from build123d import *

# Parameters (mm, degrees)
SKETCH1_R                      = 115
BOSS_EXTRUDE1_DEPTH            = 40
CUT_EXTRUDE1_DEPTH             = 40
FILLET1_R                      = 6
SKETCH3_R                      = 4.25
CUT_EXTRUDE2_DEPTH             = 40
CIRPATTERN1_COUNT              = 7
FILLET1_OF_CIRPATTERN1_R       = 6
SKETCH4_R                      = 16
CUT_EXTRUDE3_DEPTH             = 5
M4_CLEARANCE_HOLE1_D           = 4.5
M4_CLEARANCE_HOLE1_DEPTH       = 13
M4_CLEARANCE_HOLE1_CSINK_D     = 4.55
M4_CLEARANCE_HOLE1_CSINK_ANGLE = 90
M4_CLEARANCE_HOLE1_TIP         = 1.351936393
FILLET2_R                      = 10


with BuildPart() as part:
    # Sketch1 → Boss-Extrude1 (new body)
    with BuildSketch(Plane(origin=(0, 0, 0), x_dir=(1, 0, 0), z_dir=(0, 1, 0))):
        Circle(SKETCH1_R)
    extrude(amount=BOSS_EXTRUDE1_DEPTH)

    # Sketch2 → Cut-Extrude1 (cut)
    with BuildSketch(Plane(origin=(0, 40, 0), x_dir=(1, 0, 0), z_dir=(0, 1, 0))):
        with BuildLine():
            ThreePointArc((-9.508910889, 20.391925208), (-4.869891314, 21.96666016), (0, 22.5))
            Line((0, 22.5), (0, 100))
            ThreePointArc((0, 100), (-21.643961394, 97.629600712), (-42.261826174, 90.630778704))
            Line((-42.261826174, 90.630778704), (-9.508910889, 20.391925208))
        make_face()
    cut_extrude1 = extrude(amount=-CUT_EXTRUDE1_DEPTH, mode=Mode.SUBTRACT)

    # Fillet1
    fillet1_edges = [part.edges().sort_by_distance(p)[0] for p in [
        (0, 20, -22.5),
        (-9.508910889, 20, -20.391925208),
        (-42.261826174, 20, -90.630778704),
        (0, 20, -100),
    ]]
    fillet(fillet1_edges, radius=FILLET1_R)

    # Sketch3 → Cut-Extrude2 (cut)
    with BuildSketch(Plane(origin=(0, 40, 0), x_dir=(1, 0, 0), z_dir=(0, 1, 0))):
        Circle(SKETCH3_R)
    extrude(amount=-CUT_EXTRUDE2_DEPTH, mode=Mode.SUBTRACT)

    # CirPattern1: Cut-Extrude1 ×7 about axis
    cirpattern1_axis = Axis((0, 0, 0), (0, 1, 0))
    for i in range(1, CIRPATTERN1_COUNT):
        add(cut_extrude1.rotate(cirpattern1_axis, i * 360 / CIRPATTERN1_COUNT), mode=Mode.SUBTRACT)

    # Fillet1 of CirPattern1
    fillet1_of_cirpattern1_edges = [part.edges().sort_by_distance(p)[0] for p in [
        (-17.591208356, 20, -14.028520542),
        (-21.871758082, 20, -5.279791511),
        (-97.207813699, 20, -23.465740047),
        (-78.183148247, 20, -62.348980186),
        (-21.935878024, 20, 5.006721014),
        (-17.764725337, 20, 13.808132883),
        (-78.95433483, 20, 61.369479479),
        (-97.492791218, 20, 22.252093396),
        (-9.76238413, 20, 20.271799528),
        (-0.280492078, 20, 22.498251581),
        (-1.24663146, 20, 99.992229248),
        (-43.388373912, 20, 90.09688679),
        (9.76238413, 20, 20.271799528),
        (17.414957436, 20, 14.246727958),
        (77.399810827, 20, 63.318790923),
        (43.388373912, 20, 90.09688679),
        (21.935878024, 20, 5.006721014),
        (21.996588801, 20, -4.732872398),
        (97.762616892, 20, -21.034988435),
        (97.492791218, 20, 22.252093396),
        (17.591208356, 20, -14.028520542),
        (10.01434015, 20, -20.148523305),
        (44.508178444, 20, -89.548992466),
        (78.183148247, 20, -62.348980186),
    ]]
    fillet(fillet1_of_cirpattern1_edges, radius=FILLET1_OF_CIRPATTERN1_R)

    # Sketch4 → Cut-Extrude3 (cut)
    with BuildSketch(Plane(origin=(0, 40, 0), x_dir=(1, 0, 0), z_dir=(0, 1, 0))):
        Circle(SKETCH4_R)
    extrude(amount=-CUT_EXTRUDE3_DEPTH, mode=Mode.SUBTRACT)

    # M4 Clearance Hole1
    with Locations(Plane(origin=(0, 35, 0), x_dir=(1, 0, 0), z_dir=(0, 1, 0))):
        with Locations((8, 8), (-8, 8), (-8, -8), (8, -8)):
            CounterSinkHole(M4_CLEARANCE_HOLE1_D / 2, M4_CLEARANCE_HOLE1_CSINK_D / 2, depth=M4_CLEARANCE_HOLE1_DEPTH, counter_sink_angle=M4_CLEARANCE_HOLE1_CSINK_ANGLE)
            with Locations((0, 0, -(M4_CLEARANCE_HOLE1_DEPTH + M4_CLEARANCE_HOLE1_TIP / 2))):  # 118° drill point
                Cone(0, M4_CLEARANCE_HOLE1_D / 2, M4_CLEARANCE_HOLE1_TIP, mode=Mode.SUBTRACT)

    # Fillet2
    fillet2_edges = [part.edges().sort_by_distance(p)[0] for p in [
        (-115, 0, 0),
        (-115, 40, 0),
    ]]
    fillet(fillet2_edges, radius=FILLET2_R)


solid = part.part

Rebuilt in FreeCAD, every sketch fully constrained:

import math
import FreeCAD as App
import Part
import Sketcher

V = App.Vector
Q = App.Units.Quantity


def edges_at(feature, points):
    """Names of the edges that pass closest to the given points."""
    edges = feature.Shape.Edges
    near = lambda p: min(range(len(edges)), key=lambda i: edges[i].distToShape(Part.Vertex(*p))[0])
    return sorted({f"Edge{near(p) + 1}" for p in points})

doc = App.newDocument("Part")
params = doc.addObject("Spreadsheet::Sheet", "Params")
for row, (alias, value) in enumerate([
    ("sketch1_diameter", "230 mm"),
    ("pad1_length", "40 mm"),
    ("sketch2_radius", "100 mm"),
    ("sketch2_radius2", "22.5 mm"),
    ("pocket1_length", "40 mm"),
    ("fillet_radius", "6 mm"),
    ("sketch3_diameter", "8.5 mm"),
    ("pocket2_length", "40 mm"),
    ("fillet2_radius", "6 mm"),
    ("sketch4_diameter", "32 mm"),
    ("pocket3_length", "5 mm"),
    ("sketch5_diameter", "4.5 mm"),
    ("hole_diameter", "4.5 mm"),
    ("hole_depth", "13 mm"),
    ("hole_csink_diameter", "4.55 mm"),
    ("fillet3_radius", "10 mm"),
], start=1):
    params.set(f"A{row}", alias)
    params.set(f"B{row}", "=" + value)
    params.setAlias(f"B{row}", alias)

body = doc.addObject("PartDesign::Body", "Body")

# Sketch on XZ plane
sketch1 = body.newObject("Sketcher::SketchObject", "Sketch")
sketch1.AttachmentSupport = (doc.getObject("XZ_Plane"), [""])
sketch1.MapMode = "FlatFace"
sketch1.addGeometry(Part.Circle(V(0, 0, 0), V(0, 0, 1), 115), False)
sketch1.addConstraint([
    Sketcher.Constraint("Coincident", 0, 3, -1, 1),
    Sketcher.Constraint("Diameter", 0, Q("230 mm")),
])
sketch1.setExpression("Constraints[1]", "Params.sketch1_diameter")
pad1 = body.newObject("PartDesign::Pad", "Pad")
pad1.Profile = sketch1
pad1.setExpression("Length", "Params.pad1_length")
pad1.Reversed = True

# Sketch on XZ plane
sketch2 = body.newObject("Sketcher::SketchObject", "Sketch001")
sketch2.AttachmentSupport = (doc.getObject("XZ_Plane"), [""])
sketch2.MapMode = "FlatFace"
sketch2.AttachmentOffset = App.Placement(V(0, 0, -40), App.Rotation())
sketch2.addGeometry([
    Part.ArcOfCircle(Part.Circle(V(0, 0, 0), V(0, 0, 1), 22), math.radians(-115), math.radians(-90)),
    Part.LineSegment(V(0, -22, 0), V(0, -100, 0)),
    Part.ArcOfCircle(Part.Circle(V(0, 0, 0), V(0, 0, 1), 100), math.radians(-115), math.radians(-90)),
    Part.LineSegment(V(-42, -91, 0), V(-10, -20, 0)),
], False)
sketch2.addConstraint([
    Sketcher.Constraint("Coincident", 0, 2, 1, 1),
    Sketcher.Constraint("Coincident", 1, 2, 2, 2),
    Sketcher.Constraint("Coincident", 2, 1, 3, 1),
    Sketcher.Constraint("Coincident", 3, 2, 0, 1),
    Sketcher.Constraint("Vertical", 1),
    Sketcher.Constraint("Coincident", 0, 3, -1, 1),
    Sketcher.Constraint("Coincident", 2, 3, -1, 1),
    Sketcher.Constraint("PointOnObject", 0, 2, -2),
    Sketcher.Constraint("Radius", 2, Q("100 mm")),
    Sketcher.Constraint("Radius", 0, Q("22.5 mm")),
    Sketcher.Constraint("Angle", 3, Q("65 deg")),
    Sketcher.Constraint("DistanceY", 2, 1, -1, 1, Q("90.630779 mm")),
])
sketch2.setExpression("Constraints[8]", "Params.sketch2_radius")
sketch2.setExpression("Constraints[9]", "Params.sketch2_radius2")
pocket1 = body.newObject("PartDesign::Pocket", "Pocket")
pocket1.Profile = sketch2
pocket1.setExpression("Length", "Params.pocket1_length")
pocket1.Reversed = True
doc.recompute()

fillet = body.newObject("PartDesign::Fillet", "Fillet")
fillet.Base = (pocket1, edges_at(pocket1, [
    (0, 20, -22.5),
    (-9.509, 20, -20.392),
    (-42.262, 20, -90.631),
    (0, 20, -100),
]))
fillet.setExpression("Radius", "Params.fillet_radius")

# Sketch on XZ plane
sketch3 = body.newObject("Sketcher::SketchObject", "Sketch002")
sketch3.AttachmentSupport = (doc.getObject("XZ_Plane"), [""])
sketch3.MapMode = "FlatFace"
sketch3.AttachmentOffset = App.Placement(V(0, 0, -40), App.Rotation())
sketch3.addGeometry(Part.Circle(V(0, 0, 0), V(0, 0, 1), 4.2), False)
sketch3.addConstraint([
    Sketcher.Constraint("Coincident", 0, 3, -1, 1),
    Sketcher.Constraint("Diameter", 0, Q("8.5 mm")),
])
sketch3.setExpression("Constraints[1]", "Params.sketch3_diameter")
pocket2 = body.newObject("PartDesign::Pocket", "Pocket001")
pocket2.Profile = sketch3
pocket2.setExpression("Length", "Params.pocket2_length")
pocket2.Reversed = True
doc.recompute()

polarpattern = body.newObject("PartDesign::PolarPattern", "PolarPattern")
polarpattern.Originals = [pocket1]
polarpattern.Axis = (doc.getObject("Y_Axis"), [""])
polarpattern.Angle = 360
polarpattern.Occurrences = 7
body.Tip = polarpattern
doc.recompute()

fillet2 = body.newObject("PartDesign::Fillet", "Fillet001")
fillet2.Base = (polarpattern, edges_at(polarpattern, [
    (-17.591, 20, -14.029),
    (-21.872, 20, -5.28),
    (-97.208, 20, -23.466),
    (-78.183, 20, -62.349),
    (-21.936, 20, 5.007),
    (-17.765, 20, 13.808),
    (-78.954, 20, 61.369),
    (-97.493, 20, 22.252),
    (-9.762, 20, 20.272),
    (-0.28, 20, 22.498),
    (-1.247, 20, 99.992),
    (-43.388, 20, 90.097),
    (9.762, 20, 20.272),
    (17.415, 20, 14.247),
    (77.4, 20, 63.319),
    (43.388, 20, 90.097),
    (21.936, 20, 5.007),
    (21.997, 20, -4.733),
    (97.763, 20, -21.035),
    (97.493, 20, 22.252),
    (17.591, 20, -14.029),
    (10.014, 20, -20.149),
    (44.508, 20, -89.549),
    (78.183, 20, -62.349),
]))
fillet2.setExpression("Radius", "Params.fillet2_radius")

# Sketch on XZ plane
sketch4 = body.newObject("Sketcher::SketchObject", "Sketch003")
sketch4.AttachmentSupport = (doc.getObject("XZ_Plane"), [""])
sketch4.MapMode = "FlatFace"
sketch4.AttachmentOffset = App.Placement(V(0, 0, -40), App.Rotation())
sketch4.addGeometry(Part.Circle(V(0, 0, 0), V(0, 0, 1), 16), False)
sketch4.addConstraint([
    Sketcher.Constraint("Coincident", 0, 3, -1, 1),
    Sketcher.Constraint("Diameter", 0, Q("32 mm")),
])
sketch4.setExpression("Constraints[1]", "Params.sketch4_diameter")
pocket3 = body.newObject("PartDesign::Pocket", "Pocket002")
pocket3.Profile = sketch4
pocket3.setExpression("Length", "Params.pocket3_length")
pocket3.Reversed = True

# Sketch on XZ plane
sketch5 = body.newObject("Sketcher::SketchObject", "Sketch004")
sketch5.AttachmentSupport = (doc.getObject("XZ_Plane"), [""])
sketch5.MapMode = "FlatFace"
sketch5.AttachmentOffset = App.Placement(V(0, 0, -35), App.Rotation())
sketch5.addGeometry([
    Part.Circle(V(8, -8, 0), V(0, 0, 1), 2.2),
    Part.Circle(V(-8, -8, 0), V(0, 0, 1), 2.2),
    Part.Circle(V(-8, 8, 0), V(0, 0, 1), 2.2),
    Part.Circle(V(8, 8, 0), V(0, 0, 1), 2.2),
], False)
sketch5.addConstraint([
    Sketcher.Constraint("Equal", 0, 1),
    Sketcher.Constraint("Equal", 1, 2),
    Sketcher.Constraint("Equal", 2, 3),
    Sketcher.Constraint("Symmetric", 0, 3, 2, 3, -1, 1),
    Sketcher.Constraint("Symmetric", 1, 3, 3, 3, -1, 1),
    Sketcher.Constraint("Symmetric", 0, 3, 1, 3, -2),
    Sketcher.Constraint("Diameter", 0, Q("4.5 mm")),
    Sketcher.Constraint("DistanceX", -1, 1, 0, 3, Q("8 mm")),
    Sketcher.Constraint("DistanceY", 0, 3, -1, 1, Q("8 mm")),
])
sketch5.setExpression("Constraints[6]", "Params.sketch5_diameter")
doc.recompute()
hole = body.newObject("PartDesign::Hole", "Hole")
hole.Profile = sketch5
hole.ThreadType = "None"
hole.setExpression("Diameter", "Params.hole_diameter")
hole.DepthType = "Dimension"
hole.setExpression("Depth", "Params.hole_depth")
hole.DrillPoint = "Angled"
hole.DrillPointAngle = 118
hole.HoleCutType = "Countersink"
hole.setExpression("HoleCutDiameter", "Params.hole_csink_diameter")
hole.HoleCutCountersinkAngle = 90
hole.Reversed = True
doc.recompute()

fillet3 = body.newObject("PartDesign::Fillet", "Fillet002")
fillet3.Base = (hole, edges_at(hole, [(-115, 0, 0), (-115, 40, 0)]))
fillet3.setExpression("Radius", "Params.fillet3_radius")

doc.recompute()
